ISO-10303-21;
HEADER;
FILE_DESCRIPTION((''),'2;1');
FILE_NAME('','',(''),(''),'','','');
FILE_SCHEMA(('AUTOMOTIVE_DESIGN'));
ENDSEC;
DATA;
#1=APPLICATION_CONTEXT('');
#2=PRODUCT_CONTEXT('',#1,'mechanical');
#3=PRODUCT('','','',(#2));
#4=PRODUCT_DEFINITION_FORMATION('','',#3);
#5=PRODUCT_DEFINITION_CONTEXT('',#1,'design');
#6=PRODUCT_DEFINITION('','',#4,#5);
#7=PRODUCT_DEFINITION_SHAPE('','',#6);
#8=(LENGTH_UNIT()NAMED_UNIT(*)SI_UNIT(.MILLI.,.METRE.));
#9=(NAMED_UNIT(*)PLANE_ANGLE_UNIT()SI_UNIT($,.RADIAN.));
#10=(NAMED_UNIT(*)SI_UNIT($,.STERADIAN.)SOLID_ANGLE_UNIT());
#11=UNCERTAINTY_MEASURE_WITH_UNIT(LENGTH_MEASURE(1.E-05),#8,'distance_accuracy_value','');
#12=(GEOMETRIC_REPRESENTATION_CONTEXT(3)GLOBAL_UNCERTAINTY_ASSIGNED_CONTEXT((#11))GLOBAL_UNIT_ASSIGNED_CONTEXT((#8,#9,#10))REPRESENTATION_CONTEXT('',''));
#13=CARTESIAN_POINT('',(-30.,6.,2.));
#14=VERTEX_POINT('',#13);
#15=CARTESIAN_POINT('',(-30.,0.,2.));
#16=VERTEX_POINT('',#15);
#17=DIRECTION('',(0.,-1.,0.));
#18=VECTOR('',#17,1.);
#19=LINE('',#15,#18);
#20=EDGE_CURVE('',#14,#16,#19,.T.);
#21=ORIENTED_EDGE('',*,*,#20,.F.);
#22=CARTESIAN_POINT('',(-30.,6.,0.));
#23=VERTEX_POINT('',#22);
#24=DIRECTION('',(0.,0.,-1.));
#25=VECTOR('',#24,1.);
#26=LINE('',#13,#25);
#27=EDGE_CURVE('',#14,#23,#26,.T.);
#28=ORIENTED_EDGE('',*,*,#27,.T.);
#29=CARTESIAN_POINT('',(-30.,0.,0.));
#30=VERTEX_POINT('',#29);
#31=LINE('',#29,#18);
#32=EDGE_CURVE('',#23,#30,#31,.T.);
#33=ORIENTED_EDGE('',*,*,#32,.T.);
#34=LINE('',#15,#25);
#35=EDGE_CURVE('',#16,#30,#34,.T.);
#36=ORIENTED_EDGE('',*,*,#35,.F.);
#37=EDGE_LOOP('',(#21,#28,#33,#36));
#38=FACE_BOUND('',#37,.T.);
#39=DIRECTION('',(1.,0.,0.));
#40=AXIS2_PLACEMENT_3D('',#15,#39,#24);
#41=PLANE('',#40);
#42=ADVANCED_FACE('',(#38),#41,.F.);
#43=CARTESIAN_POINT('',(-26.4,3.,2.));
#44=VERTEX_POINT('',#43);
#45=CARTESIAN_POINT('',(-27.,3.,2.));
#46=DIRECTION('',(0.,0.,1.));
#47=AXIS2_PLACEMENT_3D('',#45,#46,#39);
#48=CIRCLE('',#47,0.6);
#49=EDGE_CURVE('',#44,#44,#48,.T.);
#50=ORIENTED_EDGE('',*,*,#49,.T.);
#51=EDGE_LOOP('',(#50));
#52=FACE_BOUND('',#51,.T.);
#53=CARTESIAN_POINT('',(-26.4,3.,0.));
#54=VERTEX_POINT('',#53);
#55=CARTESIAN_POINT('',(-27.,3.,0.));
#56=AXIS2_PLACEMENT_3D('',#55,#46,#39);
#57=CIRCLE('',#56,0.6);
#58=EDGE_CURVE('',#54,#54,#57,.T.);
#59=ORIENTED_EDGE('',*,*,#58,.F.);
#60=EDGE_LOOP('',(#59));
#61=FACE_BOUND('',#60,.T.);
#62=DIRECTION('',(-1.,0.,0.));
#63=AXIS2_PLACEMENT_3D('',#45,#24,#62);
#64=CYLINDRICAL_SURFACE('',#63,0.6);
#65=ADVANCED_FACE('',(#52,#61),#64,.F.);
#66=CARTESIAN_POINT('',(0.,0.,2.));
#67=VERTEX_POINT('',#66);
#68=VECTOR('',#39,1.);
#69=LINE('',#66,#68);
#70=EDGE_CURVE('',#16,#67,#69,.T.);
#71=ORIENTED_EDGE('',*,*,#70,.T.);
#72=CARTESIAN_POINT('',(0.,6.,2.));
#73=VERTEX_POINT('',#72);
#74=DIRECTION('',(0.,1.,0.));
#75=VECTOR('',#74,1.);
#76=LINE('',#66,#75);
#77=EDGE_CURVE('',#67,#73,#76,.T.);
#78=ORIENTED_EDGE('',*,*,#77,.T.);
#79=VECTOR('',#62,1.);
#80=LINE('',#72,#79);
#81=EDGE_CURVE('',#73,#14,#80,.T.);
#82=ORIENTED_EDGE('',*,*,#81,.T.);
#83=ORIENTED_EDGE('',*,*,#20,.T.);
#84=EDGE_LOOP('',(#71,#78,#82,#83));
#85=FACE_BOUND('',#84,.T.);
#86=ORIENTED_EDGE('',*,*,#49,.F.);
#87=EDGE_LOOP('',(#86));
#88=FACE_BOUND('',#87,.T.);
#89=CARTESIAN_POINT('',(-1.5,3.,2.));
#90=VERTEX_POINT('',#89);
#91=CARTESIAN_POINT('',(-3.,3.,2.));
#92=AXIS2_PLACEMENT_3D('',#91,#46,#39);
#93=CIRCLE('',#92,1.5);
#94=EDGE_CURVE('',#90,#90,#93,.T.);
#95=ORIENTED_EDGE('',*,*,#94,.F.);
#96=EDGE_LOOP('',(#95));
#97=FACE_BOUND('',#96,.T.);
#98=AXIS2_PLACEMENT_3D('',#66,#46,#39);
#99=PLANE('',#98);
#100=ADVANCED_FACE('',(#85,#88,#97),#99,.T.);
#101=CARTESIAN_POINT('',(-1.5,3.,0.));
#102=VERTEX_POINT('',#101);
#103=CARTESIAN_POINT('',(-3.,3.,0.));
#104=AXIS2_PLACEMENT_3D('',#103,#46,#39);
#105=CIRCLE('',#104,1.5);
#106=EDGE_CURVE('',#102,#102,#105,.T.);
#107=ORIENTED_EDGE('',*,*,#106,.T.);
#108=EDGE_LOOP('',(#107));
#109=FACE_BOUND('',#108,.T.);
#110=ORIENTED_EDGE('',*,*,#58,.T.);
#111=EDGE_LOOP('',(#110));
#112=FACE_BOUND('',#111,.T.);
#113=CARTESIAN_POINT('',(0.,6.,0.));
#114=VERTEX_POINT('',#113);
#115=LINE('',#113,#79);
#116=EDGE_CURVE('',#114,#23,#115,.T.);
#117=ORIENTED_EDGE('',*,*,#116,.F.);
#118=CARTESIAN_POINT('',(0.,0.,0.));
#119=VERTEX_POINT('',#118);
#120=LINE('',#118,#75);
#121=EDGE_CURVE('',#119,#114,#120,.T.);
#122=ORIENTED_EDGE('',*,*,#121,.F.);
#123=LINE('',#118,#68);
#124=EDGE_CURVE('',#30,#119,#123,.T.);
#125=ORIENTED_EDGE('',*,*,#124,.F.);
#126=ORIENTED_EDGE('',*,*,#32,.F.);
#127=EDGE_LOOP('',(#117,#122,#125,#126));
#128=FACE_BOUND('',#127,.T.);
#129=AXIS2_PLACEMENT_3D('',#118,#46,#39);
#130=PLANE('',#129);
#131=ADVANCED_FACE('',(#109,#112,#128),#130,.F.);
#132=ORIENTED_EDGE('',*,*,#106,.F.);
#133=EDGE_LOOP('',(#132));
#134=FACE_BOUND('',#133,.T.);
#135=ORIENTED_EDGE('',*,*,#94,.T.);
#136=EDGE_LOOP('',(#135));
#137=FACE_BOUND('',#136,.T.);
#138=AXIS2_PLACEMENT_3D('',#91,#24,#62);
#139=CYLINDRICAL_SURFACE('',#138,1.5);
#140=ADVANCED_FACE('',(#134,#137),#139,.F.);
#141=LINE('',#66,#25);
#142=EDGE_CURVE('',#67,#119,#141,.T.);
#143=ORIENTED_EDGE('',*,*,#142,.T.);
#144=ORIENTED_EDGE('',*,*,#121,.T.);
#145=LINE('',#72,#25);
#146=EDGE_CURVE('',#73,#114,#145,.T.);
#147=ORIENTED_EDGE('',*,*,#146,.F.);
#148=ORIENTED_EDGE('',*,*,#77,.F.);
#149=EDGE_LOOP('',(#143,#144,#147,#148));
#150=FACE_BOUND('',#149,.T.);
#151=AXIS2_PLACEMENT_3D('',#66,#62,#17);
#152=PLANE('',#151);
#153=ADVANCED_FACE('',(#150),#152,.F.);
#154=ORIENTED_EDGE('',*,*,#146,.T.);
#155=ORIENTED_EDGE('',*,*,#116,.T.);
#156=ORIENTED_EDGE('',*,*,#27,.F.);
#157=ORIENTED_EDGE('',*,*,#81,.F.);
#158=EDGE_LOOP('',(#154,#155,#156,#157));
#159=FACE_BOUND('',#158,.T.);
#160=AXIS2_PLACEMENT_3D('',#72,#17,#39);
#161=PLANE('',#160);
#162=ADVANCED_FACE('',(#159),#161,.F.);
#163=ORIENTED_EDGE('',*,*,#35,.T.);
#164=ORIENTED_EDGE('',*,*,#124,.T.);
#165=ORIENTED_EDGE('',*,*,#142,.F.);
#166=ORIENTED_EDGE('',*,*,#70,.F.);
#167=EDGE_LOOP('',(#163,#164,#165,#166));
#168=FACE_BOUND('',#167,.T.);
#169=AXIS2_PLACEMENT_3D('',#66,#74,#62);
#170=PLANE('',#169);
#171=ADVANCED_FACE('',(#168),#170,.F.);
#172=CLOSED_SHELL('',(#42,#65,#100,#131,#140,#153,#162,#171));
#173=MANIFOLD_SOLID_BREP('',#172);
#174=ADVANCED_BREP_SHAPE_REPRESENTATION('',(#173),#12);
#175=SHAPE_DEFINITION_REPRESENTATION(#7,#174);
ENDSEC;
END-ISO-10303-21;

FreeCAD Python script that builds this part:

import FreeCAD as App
import Part
import Sketcher

V = App.Vector

doc = App.newDocument("Part")
body = doc.addObject("PartDesign::Body", "Body")

# Sketch on XY plane
sketch1 = body.newObject("Sketcher::SketchObject", "Sketch")
sketch1.AttachmentSupport = (doc.getObject("XY_Plane"), [""])
sketch1.MapMode = "FlatFace"
sketch1.addGeometry(Part.LineSegment(V(-30, 6, 0), V(-30, 0, 0)), False)
sketch1.addGeometry(Part.LineSegment(V(-30, 0, 0), V(0, 0, 0)), False)
sketch1.addGeometry(Part.LineSegment(V(0, 0, 0), V(0, 6, 0)), False)
sketch1.addGeometry(Part.LineSegment(V(0, 6, 0), V(-30, 6, 0)), False)
sketch1.addGeometry(Part.Circle(V(-27, 3, 0), V(0, 0, 1), 0.6), False)
sketch1.addGeometry(Part.Circle(V(-3, 3, 0), V(0, 0, 1), 1.5), False)
sketch1.addConstraint(Sketcher.Constraint("Coincident", 0, 2, 1, 1))
sketch1.addConstraint(Sketcher.Constraint("Coincident", 1, 2, 2, 1))
sketch1.addConstraint(Sketcher.Constraint("Coincident", 2, 2, 3, 1))
sketch1.addConstraint(Sketcher.Constraint("Coincident", 3, 2, 0, 1))
sketch1.addConstraint(Sketcher.Constraint("Vertical", 0))
sketch1.addConstraint(Sketcher.Constraint("Horizontal", 1))
sketch1.addConstraint(Sketcher.Constraint("Vertical", 2))
sketch1.addConstraint(Sketcher.Constraint("Horizontal", 3))
sketch1.addConstraint(Sketcher.Constraint("Coincident", 1, 2, -1, 1))
sketch1.addConstraint(Sketcher.Constraint("Horizontal", 4, 3, 5, 3))
sketch1.addConstraint(Sketcher.Constraint("Diameter", 5, 3.0))
sketch1.addConstraint(Sketcher.Constraint("Diameter", 4, 1.2))
sketch1.addConstraint(Sketcher.Constraint("DistanceX", 1, 1, 1, 2, 30.0))
sketch1.addConstraint(Sketcher.Constraint("DistanceY", 0, 2, 0, 1, 6.0))
sketch1.addConstraint(Sketcher.Constraint("DistanceX", 4, 3, -1, 1, 27.0))
sketch1.addConstraint(Sketcher.Constraint("DistanceY", -1, 1, 4, 3, 3.0))
sketch1.addConstraint(Sketcher.Constraint("DistanceX", 5, 3, -1, 1, 3.0))
pad1 = body.newObject("PartDesign::Pad", "Pad")
pad1.Profile = sketch1
pad1.Length = 2

doc.recompute()
